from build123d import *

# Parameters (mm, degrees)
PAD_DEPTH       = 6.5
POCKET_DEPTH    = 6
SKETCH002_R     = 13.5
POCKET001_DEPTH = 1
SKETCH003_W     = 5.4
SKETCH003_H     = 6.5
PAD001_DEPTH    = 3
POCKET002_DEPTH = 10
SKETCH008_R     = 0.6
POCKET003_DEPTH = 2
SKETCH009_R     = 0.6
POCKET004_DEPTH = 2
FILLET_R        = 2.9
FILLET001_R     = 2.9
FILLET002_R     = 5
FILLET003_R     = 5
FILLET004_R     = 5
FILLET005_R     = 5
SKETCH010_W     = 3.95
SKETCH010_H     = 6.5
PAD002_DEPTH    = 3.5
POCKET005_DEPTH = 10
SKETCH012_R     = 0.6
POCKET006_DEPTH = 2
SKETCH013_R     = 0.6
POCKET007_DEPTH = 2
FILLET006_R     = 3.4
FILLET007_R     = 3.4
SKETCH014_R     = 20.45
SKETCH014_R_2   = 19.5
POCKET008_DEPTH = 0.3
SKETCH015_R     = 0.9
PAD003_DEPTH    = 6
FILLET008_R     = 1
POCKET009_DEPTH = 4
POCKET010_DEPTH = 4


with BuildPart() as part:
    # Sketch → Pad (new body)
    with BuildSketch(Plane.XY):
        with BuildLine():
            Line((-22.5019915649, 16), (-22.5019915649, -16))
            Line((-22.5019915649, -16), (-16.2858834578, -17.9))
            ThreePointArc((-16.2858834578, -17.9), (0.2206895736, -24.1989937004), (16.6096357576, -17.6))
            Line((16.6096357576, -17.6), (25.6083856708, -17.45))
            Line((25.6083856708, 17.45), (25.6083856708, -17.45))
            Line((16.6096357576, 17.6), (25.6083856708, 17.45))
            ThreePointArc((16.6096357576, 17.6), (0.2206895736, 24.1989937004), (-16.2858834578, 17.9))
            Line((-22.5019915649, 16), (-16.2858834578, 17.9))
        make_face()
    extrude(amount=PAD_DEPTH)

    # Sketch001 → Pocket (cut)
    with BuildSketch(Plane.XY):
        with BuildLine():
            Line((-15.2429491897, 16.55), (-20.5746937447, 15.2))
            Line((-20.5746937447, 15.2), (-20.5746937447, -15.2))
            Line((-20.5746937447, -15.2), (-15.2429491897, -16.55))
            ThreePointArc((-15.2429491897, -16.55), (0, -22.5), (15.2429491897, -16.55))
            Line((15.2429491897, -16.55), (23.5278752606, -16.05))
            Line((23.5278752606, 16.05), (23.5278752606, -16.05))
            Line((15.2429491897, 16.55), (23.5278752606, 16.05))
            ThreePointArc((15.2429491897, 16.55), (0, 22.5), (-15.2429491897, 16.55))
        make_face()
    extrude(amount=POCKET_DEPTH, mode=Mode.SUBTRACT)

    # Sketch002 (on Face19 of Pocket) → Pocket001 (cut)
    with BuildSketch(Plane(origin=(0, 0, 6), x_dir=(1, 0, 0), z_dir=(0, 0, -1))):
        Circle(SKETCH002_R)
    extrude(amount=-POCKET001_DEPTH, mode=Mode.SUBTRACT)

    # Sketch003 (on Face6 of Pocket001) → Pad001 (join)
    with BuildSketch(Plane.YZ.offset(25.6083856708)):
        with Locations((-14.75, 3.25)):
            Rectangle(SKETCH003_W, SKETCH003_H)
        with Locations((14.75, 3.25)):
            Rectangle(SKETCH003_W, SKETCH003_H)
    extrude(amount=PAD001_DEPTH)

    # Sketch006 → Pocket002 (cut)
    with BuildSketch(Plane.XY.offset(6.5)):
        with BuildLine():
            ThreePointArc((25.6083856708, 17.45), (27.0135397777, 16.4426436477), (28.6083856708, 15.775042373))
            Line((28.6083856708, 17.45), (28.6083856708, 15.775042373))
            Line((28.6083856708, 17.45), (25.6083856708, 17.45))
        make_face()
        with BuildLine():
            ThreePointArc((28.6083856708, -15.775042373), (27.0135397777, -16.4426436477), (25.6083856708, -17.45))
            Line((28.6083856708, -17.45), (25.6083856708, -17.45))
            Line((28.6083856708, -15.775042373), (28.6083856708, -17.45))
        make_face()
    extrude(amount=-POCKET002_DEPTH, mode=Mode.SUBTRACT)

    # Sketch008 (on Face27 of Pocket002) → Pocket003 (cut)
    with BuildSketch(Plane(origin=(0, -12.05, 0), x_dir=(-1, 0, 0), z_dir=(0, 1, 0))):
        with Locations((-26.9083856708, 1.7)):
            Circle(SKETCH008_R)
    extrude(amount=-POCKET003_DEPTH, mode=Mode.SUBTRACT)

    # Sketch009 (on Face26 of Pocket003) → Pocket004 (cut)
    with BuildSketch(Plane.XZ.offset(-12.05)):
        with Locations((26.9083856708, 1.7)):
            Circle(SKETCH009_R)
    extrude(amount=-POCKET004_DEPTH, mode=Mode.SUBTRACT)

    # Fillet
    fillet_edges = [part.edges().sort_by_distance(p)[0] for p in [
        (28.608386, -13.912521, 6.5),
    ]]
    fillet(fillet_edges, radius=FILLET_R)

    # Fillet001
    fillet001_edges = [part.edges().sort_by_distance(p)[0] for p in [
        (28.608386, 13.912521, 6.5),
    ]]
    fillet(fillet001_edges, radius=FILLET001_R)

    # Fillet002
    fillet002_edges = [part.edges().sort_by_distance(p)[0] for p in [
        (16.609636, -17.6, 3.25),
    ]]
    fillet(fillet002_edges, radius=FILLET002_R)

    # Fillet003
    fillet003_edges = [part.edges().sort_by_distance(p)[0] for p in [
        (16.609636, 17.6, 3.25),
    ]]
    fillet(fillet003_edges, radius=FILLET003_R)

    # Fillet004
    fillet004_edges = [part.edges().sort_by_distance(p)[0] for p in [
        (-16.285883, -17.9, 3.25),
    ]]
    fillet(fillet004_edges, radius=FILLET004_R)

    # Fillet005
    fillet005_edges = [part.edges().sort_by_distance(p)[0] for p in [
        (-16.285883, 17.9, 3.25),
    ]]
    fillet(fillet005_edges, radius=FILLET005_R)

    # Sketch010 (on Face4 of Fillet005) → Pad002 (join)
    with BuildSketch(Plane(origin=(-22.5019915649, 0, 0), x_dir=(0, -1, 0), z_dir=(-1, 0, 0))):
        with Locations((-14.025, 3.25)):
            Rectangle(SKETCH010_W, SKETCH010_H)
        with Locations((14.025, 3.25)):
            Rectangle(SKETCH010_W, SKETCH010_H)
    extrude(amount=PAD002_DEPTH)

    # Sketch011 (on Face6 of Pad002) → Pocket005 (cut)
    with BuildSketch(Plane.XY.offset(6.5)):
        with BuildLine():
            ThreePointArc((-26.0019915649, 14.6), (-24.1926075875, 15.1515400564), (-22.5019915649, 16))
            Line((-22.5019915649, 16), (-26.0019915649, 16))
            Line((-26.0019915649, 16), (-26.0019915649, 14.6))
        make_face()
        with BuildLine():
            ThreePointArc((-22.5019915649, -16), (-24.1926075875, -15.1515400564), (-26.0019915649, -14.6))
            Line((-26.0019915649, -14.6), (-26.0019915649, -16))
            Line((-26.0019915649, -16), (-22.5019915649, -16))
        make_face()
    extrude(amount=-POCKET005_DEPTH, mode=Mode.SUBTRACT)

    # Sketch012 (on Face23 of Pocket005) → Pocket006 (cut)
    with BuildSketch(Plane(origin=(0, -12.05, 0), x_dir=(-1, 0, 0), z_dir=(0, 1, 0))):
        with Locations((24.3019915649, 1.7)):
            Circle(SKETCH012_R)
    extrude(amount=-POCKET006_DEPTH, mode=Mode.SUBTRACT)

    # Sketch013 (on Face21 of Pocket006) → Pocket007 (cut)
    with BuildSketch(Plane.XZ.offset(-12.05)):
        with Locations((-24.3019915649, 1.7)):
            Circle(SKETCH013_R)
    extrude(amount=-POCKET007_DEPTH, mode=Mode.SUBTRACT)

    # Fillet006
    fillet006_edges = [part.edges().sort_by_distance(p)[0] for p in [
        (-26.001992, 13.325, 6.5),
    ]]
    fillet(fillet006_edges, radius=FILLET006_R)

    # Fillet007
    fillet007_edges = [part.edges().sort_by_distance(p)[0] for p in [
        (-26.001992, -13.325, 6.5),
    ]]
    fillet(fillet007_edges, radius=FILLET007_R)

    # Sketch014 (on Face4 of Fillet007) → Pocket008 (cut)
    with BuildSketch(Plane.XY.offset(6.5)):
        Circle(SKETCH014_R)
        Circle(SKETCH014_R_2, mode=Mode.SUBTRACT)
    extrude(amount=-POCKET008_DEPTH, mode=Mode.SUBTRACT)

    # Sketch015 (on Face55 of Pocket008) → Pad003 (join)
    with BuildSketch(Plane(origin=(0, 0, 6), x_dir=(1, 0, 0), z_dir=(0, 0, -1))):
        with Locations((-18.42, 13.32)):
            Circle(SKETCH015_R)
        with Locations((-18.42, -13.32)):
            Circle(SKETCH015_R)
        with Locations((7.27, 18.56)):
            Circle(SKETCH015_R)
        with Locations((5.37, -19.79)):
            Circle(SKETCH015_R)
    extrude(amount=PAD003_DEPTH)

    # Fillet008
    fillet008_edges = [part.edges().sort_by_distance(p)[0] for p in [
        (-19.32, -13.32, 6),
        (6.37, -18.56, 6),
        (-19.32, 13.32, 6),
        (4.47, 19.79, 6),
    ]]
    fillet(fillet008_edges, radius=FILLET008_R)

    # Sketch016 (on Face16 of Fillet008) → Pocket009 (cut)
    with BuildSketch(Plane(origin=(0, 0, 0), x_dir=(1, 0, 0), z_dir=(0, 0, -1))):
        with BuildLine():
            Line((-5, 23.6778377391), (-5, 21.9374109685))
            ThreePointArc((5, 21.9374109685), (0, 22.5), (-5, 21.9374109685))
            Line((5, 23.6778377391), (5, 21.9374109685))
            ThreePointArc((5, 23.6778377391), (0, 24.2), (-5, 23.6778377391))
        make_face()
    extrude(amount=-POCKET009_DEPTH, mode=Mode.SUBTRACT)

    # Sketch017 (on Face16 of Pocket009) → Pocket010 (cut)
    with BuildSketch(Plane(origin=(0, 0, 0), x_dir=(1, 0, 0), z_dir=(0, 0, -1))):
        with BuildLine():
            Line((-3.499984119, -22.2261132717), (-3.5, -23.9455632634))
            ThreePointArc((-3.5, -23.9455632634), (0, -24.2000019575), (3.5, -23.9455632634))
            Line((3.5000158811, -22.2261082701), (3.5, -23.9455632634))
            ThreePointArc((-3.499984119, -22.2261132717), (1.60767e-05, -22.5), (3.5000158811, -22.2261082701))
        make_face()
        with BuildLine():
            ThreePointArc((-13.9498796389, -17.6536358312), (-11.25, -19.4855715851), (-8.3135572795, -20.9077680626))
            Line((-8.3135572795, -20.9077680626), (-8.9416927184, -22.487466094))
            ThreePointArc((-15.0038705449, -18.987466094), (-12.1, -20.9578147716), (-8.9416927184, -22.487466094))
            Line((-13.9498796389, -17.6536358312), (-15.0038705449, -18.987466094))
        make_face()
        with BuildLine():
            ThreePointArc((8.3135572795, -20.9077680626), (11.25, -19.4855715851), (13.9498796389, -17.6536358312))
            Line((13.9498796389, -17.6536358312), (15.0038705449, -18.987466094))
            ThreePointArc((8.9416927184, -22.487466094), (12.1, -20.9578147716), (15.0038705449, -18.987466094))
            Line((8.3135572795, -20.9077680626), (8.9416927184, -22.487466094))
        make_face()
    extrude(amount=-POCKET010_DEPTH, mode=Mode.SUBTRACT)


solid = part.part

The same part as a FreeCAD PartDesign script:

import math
import FreeCAD as App
import Part
import Sketcher
from FreeCAD import Vector
Q = App.Units.Quantity


def edges_at(feature, points):
    """Names of the edges that pass closest to the given points."""
    edges = feature.Shape.Edges
    near = lambda p: min(range(len(edges)), key=lambda i: edges[i].distToShape(Part.Vertex(*p))[0])
    return sorted({f"Edge{near(p) + 1}" for p in points})

doc = App.newDocument("Part")
params = doc.addObject("Spreadsheet::Sheet", "Params")
for row, (alias, value) in enumerate([
    ("sketch1_radius", "24.2 mm"),
    ("sketch1_height", "32 mm"),
    ("sketch1_length", "9 mm"),
    ("sketch1_height2", "34.9 mm"),
    ("sketch1_length2", "6.5 mm"),
    ("pad1_length", "6.5 mm"),
    ("sketch2_radius", "22.5 mm"),
    ("sketch2_height", "30.4 mm"),
    ("sketch2_height2", "32.1 mm"),
    ("sketch2_length", "5.5 mm"),
    ("sketch2_length2", "8.3 mm"),
    ("pocket1_length", "6 mm"),
    ("sketch3_diameter", "27 mm"),
    ("pocket2_length", "1 mm"),
    ("sketch4_width", "5.4 mm"),
    ("sketch4_height", "6.5 mm"),
    ("pad2_length", "3 mm"),
    ("sketch5_width", "3 mm"),
    ("pocket3_length", "10 mm"),
    ("sketch6_diameter", "1.2 mm"),
    ("pocket4_length", "2 mm"),
    ("sketch7_diameter", "1.2 mm"),
    ("pocket5_length", "2 mm"),
    ("fillet_radius", "2.9 mm"),
    ("fillet2_radius", "2.9 mm"),
    ("fillet3_radius", "5 mm"),
    ("fillet4_radius", "5 mm"),
    ("fillet5_radius", "5 mm"),
    ("fillet6_radius", "5 mm"),
    ("sketch8_height", "6.5 mm"),
    ("sketch8_width", "3.95 mm"),
    ("pad3_length", "3.5 mm"),
    ("sketch9_width", "3.5 mm"),
    ("sketch9_height", "1.4 mm"),
    ("pocket6_length", "10 mm"),
    ("sketch10_diameter", "1.2 mm"),
    ("pocket7_length", "2 mm"),
    ("sketch11_diameter", "1.2 mm"),
    ("pocket8_length", "2 mm"),
    ("fillet7_radius", "3.4 mm"),
    ("fillet8_radius", "3.4 mm"),
    ("sketch12_diameter", "39 mm"),
    ("sketch12_diameter2", "40.9 mm"),
    ("pocket9_length", "0.3 mm"),
    ("sketch13_diameter", "1.8 mm"),
    ("pad4_length", "6 mm"),
    ("fillet9_radius", "1 mm"),
    ("sketch14_radius", "22.5 mm"),
    ("sketch14_radius2", "24.2 mm"),
    ("pocket10_length", "4 mm"),
    ("sketch15_radius", "22.5 mm"),
    ("sketch15_radius2", "24.2 mm"),
    ("pocket11_length", "4 mm"),
], start=1):
    params.set(f"A{row}", alias)
    params.set(f"B{row}", "=" + value)
    params.setAlias(f"B{row}", alias)

body = doc.addObject("PartDesign::Body", "Body")

# Sketch on XY plane
sketch1 = doc.addObject("Sketcher::SketchObject", "Sketch")
body.addObject(sketch1)
sketch1.AttachmentSupport = (doc.XY_Plane, [""])
sketch1.MapMode = "FlatFace"
sketch1.addGeometry([
    Part.LineSegment(Vector(-22.501992, 16, 0), Vector(-22.501992, -16, 0)),  # 0
    Part.LineSegment(Vector(-22.501992, -16, 0), Vector(-16.285883, -17.9, 0)),  # 1
    Part.ArcOfCircle(Part.Circle(Vector(0, 0, 0), Vector(0, 0, 1), 24.2), math.radians(-132.296737), math.radians(-46.658242)),  # 2
    Part.LineSegment(Vector(16.609636, -17.6, 0), Vector(25.608386, -17.45, 0)),  # 3
    Part.LineSegment(Vector(25.608386, -17.45, 0), Vector(25.608386, 17.45, 0)),  # 4
    Part.LineSegment(Vector(25.608386, 17.45, 0), Vector(16.609636, 17.6, 0)),  # 5
    Part.ArcOfCircle(Part.Circle(Vector(0, 0, 0), Vector(0, 0, 1), 24.2), math.radians(46.658242), math.radians(132.296737)),  # 6
    Part.LineSegment(Vector(-16.285883, 17.9, 0), Vector(-22.501992, 16, 0)),  # 7
], False)
sketch1.addConstraint([
    Sketcher.Constraint("Coincident", 0, 2, 1, 1),
    Sketcher.Constraint("Coincident", 1, 2, 2, 1),
    Sketcher.Constraint("Coincident", 2, 2, 3, 1),
    Sketcher.Constraint("Coincident", 3, 2, 4, 1),
    Sketcher.Constraint("Coincident", 4, 2, 5, 1),
    Sketcher.Constraint("Coincident", 5, 2, 6, 1),
    Sketcher.Constraint("Coincident", 6, 2, 7, 1),
    Sketcher.Constraint("Coincident", 7, 2, 0, 1),
    Sketcher.Constraint("Vertical", 0),
    Sketcher.Constraint("Vertical", 4),
    Sketcher.Constraint("Coincident", 2, 3, -1, 1),
    Sketcher.Constraint("Coincident", 6, 3, -1, 1),
    Sketcher.Constraint("Equal", 2, 6),
    Sketcher.Constraint("Vertical", 2, 2, 5, 2),
    Sketcher.Constraint("Vertical", 1, 2, 6, 2),
    Sketcher.Constraint("Equal", 3, 5),
    Sketcher.Constraint("Equal", 1, 7),
    Sketcher.Constraint("Radius", 2, Q("24.2 mm")),
    Sketcher.Constraint("DistanceY", 0, 2, 0, 1, Q("32 mm")),
    Sketcher.Constraint("Distance", 3, Q("9 mm")),
    Sketcher.Constraint("DistanceY", 4, 1, 4, 2, Q("34.9 mm")),
    Sketcher.Constraint("Distance", 1, Q("6.5 mm")),
    Sketcher.Constraint("DistanceY", 1, 2, -1, 1, Q("17.9 mm")),
    Sketcher.Constraint("DistanceY", 2, 2, -1, 1, Q("17.6 mm")),
])
sketch1.setExpression("Constraints[17]", "Params.sketch1_radius")
sketch1.setExpression("Constraints[18]", "Params.sketch1_height")
sketch1.setExpression("Constraints[19]", "Params.sketch1_length")
sketch1.setExpression("Constraints[20]", "Params.sketch1_height2")
sketch1.setExpression("Constraints[21]", "Params.sketch1_length2")
pad1 = doc.addObject("PartDesign::Pad", "Pad")
body.addObject(pad1)
pad1.Profile = sketch1
pad1.setExpression("Length", "Params.pad1_length")

# Sketch on XY plane
sketch2 = doc.addObject("Sketcher::SketchObject", "Sketch001")
body.addObject(sketch2)
sketch2.AttachmentSupport = (doc.XY_Plane, [""])
sketch2.MapMode = "FlatFace"
sketch2.addGeometry([
    Part.LineSegment(Vector(-15.242949, 16.55, 0), Vector(-20.574694, 15.2, 0)),  # 0
    Part.LineSegment(Vector(-20.574694, 15.2, 0), Vector(-20.574694, -15.2, 0)),  # 1
    Part.LineSegment(Vector(-20.574694, -15.2, 0), Vector(-15.242949, -16.55, 0)),  # 2
    Part.ArcOfCircle(Part.Circle(Vector(0, 0, 0), Vector(0, 0, 1), 22.5), math.radians(-132.645819), math.radians(-47.354181)),  # 3
    Part.LineSegment(Vector(15.242949, -16.55, 0), Vector(23.527875, -16.05, 0)),  # 4
    Part.LineSegment(Vector(23.527875, -16.05, 0), Vector(23.527875, 16.05, 0)),  # 5
    Part.LineSegment(Vector(23.527875, 16.05, 0), Vector(15.242949, 16.55, 0)),  # 6
    Part.ArcOfCircle(Part.Circle(Vector(0, 0, 0), Vector(0, 0, 1), 22.5), math.radians(47.354181), math.radians(132.645819)),  # 7
], False)
sketch2.addConstraint([
    Sketcher.Constraint("Coincident", 0, 2, 1, 1),
    Sketcher.Constraint("Coincident", 1, 2, 2, 1),
    Sketcher.Constraint("Coincident", 2, 2, 3, 1),
    Sketcher.Constraint("Coincident", 3, 2, 4, 1),
    Sketcher.Constraint("Coincident", 4, 2, 5, 1),
    Sketcher.Constraint("Coincident", 5, 2, 6, 1),
    Sketcher.Constraint("Coincident", 6, 2, 7, 1),
    Sketcher.Constraint("Coincident", 7, 2, 0, 1),
    Sketcher.Constraint("Vertical", 1),
    Sketcher.Constraint("Vertical", 5),
    Sketcher.Constraint("Coincident", 3, 3, -1, 1),
    Sketcher.Constraint("Coincident", 7, 3, -1, 1),
    Sketcher.Constraint("Equal", 3, 7),
    Sketcher.Constraint("Horizontal", 2, 2, 3, 2),
    Sketcher.Constraint("Horizontal", 6, 2, 7, 2),
    Sketcher.Constraint("Vertical", 3, 2, 6, 2),
    Sketcher.Constraint("Equal", 0, 2),
    Sketcher.Constraint("Equal", 4, 6),
    Sketcher.Constraint("Radius", 3, Q("22.5 mm")),
    Sketcher.Constraint("DistanceY", 1, 2, 1, 1, Q("30.4 mm")),
    Sketcher.Constraint("DistanceY", 5, 1, 5, 2, Q("32.1 mm")),
    Sketcher.Constraint("Distance", 0, Q("5.5 mm")),
    Sketcher.Constraint("Distance", 4, Q("8.3 mm")),
    Sketcher.Constraint("DistanceY", 3, 2, 4, 2, Q("0.5 mm")),
])
sketch2.setExpression("Constraints[18]", "Params.sketch2_radius")
sketch2.setExpression("Constraints[19]", "Params.sketch2_height")
sketch2.setExpression("Constraints[20]", "Params.sketch2_height2")
sketch2.setExpression("Constraints[21]", "Params.sketch2_length")
sketch2.setExpression("Constraints[22]", "Params.sketch2_length2")
pocket1 = doc.addObject("PartDesign::Pocket", "Pocket")
body.addObject(pocket1)
pocket1.Profile = sketch2
pocket1.setExpression("Length", "Params.pocket1_length")
pocket1.Reversed = True

# Sketch on XY plane
sketch3 = doc.addObject("Sketcher::SketchObject", "Sketch002")
body.addObject(sketch3)
sketch3.AttachmentSupport = (doc.XY_Plane, [""])
sketch3.MapMode = "FlatFace"
sketch3.AttachmentOffset = App.Placement(Vector(0, 0, 6), App.Rotation())
sketch3.addGeometry(Part.Circle(Vector(0, 0, 0), Vector(0, 0, 1), 13.5), False)
sketch3.addConstraint([
    Sketcher.Constraint("Coincident", 0, 3, -1, 1),
    Sketcher.Constraint("Diameter", 0, Q("27 mm")),
])
sketch3.setExpression("Constraints[1]", "Params.sketch3_diameter")
pocket2 = doc.addObject("PartDesign::Pocket", "Pocket001")
body.addObject(pocket2)
pocket2.Profile = sketch3
pocket2.setExpression("Length", "Params.pocket2_length")
pocket2.Reversed = True

# Sketch on YZ plane
sketch4 = doc.addObject("Sketcher::SketchObject", "Sketch003")
body.addObject(sketch4)
sketch4.AttachmentSupport = (doc.YZ_Plane, [""])
sketch4.MapMode = "FlatFace"
sketch4.AttachmentOffset = App.Placement(Vector(0, 0, 25.608386), App.Rotation())
sketch4.addGeometry([
    Part.LineSegment(Vector(-17.45, 6.5, 0), Vector(-17.45, 0, 0)),  # 0
    Part.LineSegment(Vector(-17.45, 0, 0), Vector(-12.05, 0, 0)),  # 1
    Part.LineSegment(Vector(-12.05, 0, 0), Vector(-12.05, 6.5, 0)),  # 2
    Part.LineSegment(Vector(-12.05, 6.5, 0), Vector(-17.45, 6.5, 0)),  # 3
    Part.LineSegment(Vector(12.05, 6.5, 0), Vector(12.05, 0, 0)),  # 4
    Part.LineSegment(Vector(12.05, 0, 0), Vector(17.45, 0, 0)),  # 5
    Part.LineSegment(Vector(17.45, 0, 0), Vector(17.45, 6.5, 0)),  # 6
    Part.LineSegment(Vector(17.45, 6.5, 0), Vector(12.05, 6.5, 0)),  # 7
], False)
sketch4.addConstraint([
    Sketcher.Constraint("Coincident", 0, 2, 1, 1),
    Sketcher.Constraint("Coincident", 1, 2, 2, 1),
    Sketcher.Constraint("Coincident", 2, 2, 3, 1),
    Sketcher.Constraint("Coincident", 3, 2, 0, 1),
    Sketcher.Constraint("Coincident", 4, 2, 5, 1),
    Sketcher.Constraint("Coincident", 5, 2, 6, 1),
    Sketcher.Constraint("Coincident", 6, 2, 7, 1),
    Sketcher.Constraint("Coincident", 7, 2, 4, 1),
    Sketcher.Constraint("Vertical", 0),
    Sketcher.Constraint("Horizontal", 1),
    Sketcher.Constraint("Vertical", 2),
    Sketcher.Constraint("Horizontal", 3),
    Sketcher.Constraint("Vertical", 4),
    Sketcher.Constraint("Horizontal", 5),
    Sketcher.Constraint("Vertical", 6),
    Sketcher.Constraint("Horizontal", 7),
    Sketcher.Constraint("Symmetric", 1, 2, 4, 2, -1, 1),
    Sketcher.Constraint("Symmetric", 0, 2, 5, 2, -2),
    Sketcher.Constraint("Horizontal", 3, 2, 6, 2),
    Sketcher.Constraint("DistanceX", 1, 1, 1, 2, Q("5.4 mm")),
    Sketcher.Constraint("DistanceY", 0, 2, 0, 1, Q("6.5 mm")),
    Sketcher.Constraint("DistanceX", 1, 2, 4, 2, Q("24.1 mm")),
])
sketch4.setExpression("Constraints[19]", "Params.sketch4_width")
sketch4.setExpression("Constraints[20]", "Params.sketch4_height")
pad2 = doc.addObject("PartDesign::Pad", "Pad001")
body.addObject(pad2)
pad2.Profile = sketch4
pad2.setExpression("Length", "Params.pad2_length")

# Sketch on XY plane
sketch5 = doc.addObject("Sketcher::SketchObject", "Sketch004")
body.addObject(sketch5)
sketch5.AttachmentSupport = (doc.XY_Plane, [""])
sketch5.MapMode = "FlatFace"
sketch5.AttachmentOffset = App.Placement(Vector(0, 0, 6.5), App.Rotation())
sketch5.addGeometry([
    Part.ArcOfCircle(Part.Circle(Vector(30.758386, 23.15, 0), Vector(0, 0, 1), 7.681959), math.radians(-132.09809), math.radians(-106.252835)),  # 0
    Part.LineSegment(Vector(28.608386, 15.775042, 0), Vector(28.608386, 17.45, 0)),  # 1
    Part.LineSegment(Vector(28.608386, 17.45, 0), Vector(25.608386, 17.45, 0)),  # 2
    Part.ArcOfCircle(Part.Circle(Vector(30.758386, -23.15, 0), Vector(0, 0, 1), 7.681959), math.radians(106.252835), math.radians(132.09809)),  # 3
    Part.LineSegment(Vector(25.608386, -17.45, 0), Vector(28.608386, -17.45, 0)),  # 4
    Part.LineSegment(Vector(28.608386, -17.45, 0), Vector(28.608386, -15.775042, 0)),  # 5
], False)
sketch5.addConstraint([
    Sketcher.Constraint("Coincident", 0, 2, 1, 1),
    Sketcher.Constraint("Coincident", 1, 2, 2, 1),
    Sketcher.Constraint("Coincident", 2, 2, 0, 1),
    Sketcher.Constraint("Coincident", 3, 2, 4, 1),
    Sketcher.Constraint("Coincident", 4, 2, 5, 1),
    Sketcher.Constraint("Coincident", 5, 2, 3, 1),
    Sketcher.Constraint("Vertical", 1),
    Sketcher.Constraint("Horizontal", 2),
    Sketcher.Constraint("Horizontal", 4),
    Sketcher.Constraint("Vertical", 5),
    Sketcher.Constraint("Equal", 0, 3),
    Sketcher.Constraint("Symmetric", 0, 3, 3, 3, -1),
    Sketcher.Constraint("Symmetric", 1, 2, 4, 2, -1),
    Sketcher.Constraint("DistanceX", 2, 2, 2, 1, Q("3 mm")),
    Sketcher.Constraint("DistanceY", 3, 3, 0, 3, Q("46.3 mm")),
    Sketcher.Constraint("DistanceY", 1, 2, 0, 3, Q("5.7 mm")),
    Sketcher.Constraint("Radius", 0, Q("7.681959 mm")),
    Sketcher.Constraint("DistanceX", -1, 1, 0, 3, Q("30.758386 mm")),
])
sketch5.setExpression("Constraints[13]", "Params.sketch5_width")
pocket3 = doc.addObject("PartDesign::Pocket", "Pocket002")
body.addObject(pocket3)
pocket3.Profile = sketch5
pocket3.setExpression("Length", "Params.pocket3_length")

# Sketch on XZ plane
sketch6 = doc.addObject("Sketcher::SketchObject", "Sketch005")
body.addObject(sketch6)
sketch6.AttachmentSupport = (doc.XZ_Plane, [""])
sketch6.MapMode = "FlatFace"
sketch6.AttachmentOffset = App.Placement(Vector(0, 0, 12.05), App.Rotation())
sketch6.addGeometry(Part.Circle(Vector(26.908386, 1.7, 0), Vector(0, 0, 1), 0.6), False)
sketch6.addConstraint([
    Sketcher.Constraint("Diameter", 0, Q("1.2 mm")),
    Sketcher.Constraint("DistanceY", -1, 1, 0, 3, Q("1.7 mm")),
    Sketcher.Constraint("DistanceX", -1, 1, 0, 3, Q("26.908386 mm")),
])
sketch6.setExpression("Constraints[0]", "Params.sketch6_diameter")
pocket4 = doc.addObject("PartDesign::Pocket", "Pocket003")
body.addObject(pocket4)
pocket4.Profile = sketch6
pocket4.setExpression("Length", "Params.pocket4_length")
pocket4.Reversed = True

# Sketch on XZ plane
sketch7 = doc.addObject("Sketcher::SketchObject", "Sketch006")
body.addObject(sketch7)
sketch7.AttachmentSupport = (doc.XZ_Plane, [""])
sketch7.MapMode = "FlatFace"
sketch7.AttachmentOffset = App.Placement(Vector(0, 0, -12.05), App.Rotation())
sketch7.addGeometry(Part.Circle(Vector(26.908386, 1.7, 0), Vector(0, 0, 1), 0.6), False)
sketch7.addConstraint([
    Sketcher.Constraint("Diameter", 0, Q("1.2 mm")),
    Sketcher.Constraint("DistanceY", -1, 1, 0, 3, Q("1.7 mm")),
    Sketcher.Constraint("DistanceX", -1, 1, 0, 3, Q("26.908386 mm")),
])
sketch7.setExpression("Constraints[0]", "Params.sketch7_diameter")
pocket5 = doc.addObject("PartDesign::Pocket", "Pocket004")
body.addObject(pocket5)
pocket5.Profile = sketch7
pocket5.setExpression("Length", "Params.pocket5_length")
doc.recompute()

fillet = doc.addObject("PartDesign::Fillet", "Fillet")
body.addObject(fillet)
fillet.Base = (pocket5, edges_at(pocket5, [(28.608, -13.913, 6.5)]))
fillet.setExpression("Radius", "Params.fillet_radius")
doc.recompute()

fillet2 = doc.addObject("PartDesign::Fillet", "Fillet001")
body.addObject(fillet2)
fillet2.Base = (fillet, edges_at(fillet, [(28.608, 13.913, 6.5)]))
fillet2.setExpression("Radius", "Params.fillet2_radius")
doc.recompute()

fillet3 = doc.addObject("PartDesign::Fillet", "Fillet002")
body.addObject(fillet3)
fillet3.Base = (fillet2, edges_at(fillet2, [(16.61, -17.6, 3.25)]))
fillet3.setExpression("Radius", "Params.fillet3_radius")
doc.recompute()

fillet4 = doc.addObject("PartDesign::Fillet", "Fillet003")
body.addObject(fillet4)
fillet4.Base = (fillet3, edges_at(fillet3, [(16.61, 17.6, 3.25)]))
fillet4.setExpression("Radius", "Params.fillet4_radius")
doc.recompute()

fillet5 = doc.addObject("PartDesign::Fillet", "Fillet004")
body.addObject(fillet5)
fillet5.Base = (fillet4, edges_at(fillet4, [(-16.286, -17.9, 3.25)]))
fillet5.setExpression("Radius", "Params.fillet5_radius")
doc.recompute()

fillet6 = doc.addObject("PartDesign::Fillet", "Fillet005")
body.addObject(fillet6)
fillet6.Base = (fillet5, edges_at(fillet5, [(-16.286, 17.9, 3.25)]))
fillet6.setExpression("Radius", "Params.fillet6_radius")

# Sketch on YZ plane
sketch8 = doc.addObject("Sketcher::SketchObject", "Sketch007")
body.addObject(sketch8)
sketch8.AttachmentSupport = (doc.YZ_Plane, [""])
sketch8.MapMode = "FlatFace"
sketch8.AttachmentOffset = App.Placement(Vector(0, 0, -22.501992), App.Rotation())
sketch8.addGeometry([
    Part.LineSegment(Vector(16, 6.5, 0), Vector(16, 0, 0)),  # 0
    Part.LineSegment(Vector(16, 0, 0), Vector(12.05, 0, 0)),  # 1
    Part.LineSegment(Vector(12.05, 0, 0), Vector(12.05, 6.5, 0)),  # 2
    Part.LineSegment(Vector(12.05, 6.5, 0), Vector(16, 6.5, 0)),  # 3
    Part.LineSegment(Vector(-12.05, 6.5, 0), Vector(-12.05, 0, 0)),  # 4
    Part.LineSegment(Vector(-12.05, 0, 0), Vector(-16, 0, 0)),  # 5
    Part.LineSegment(Vector(-16, 0, 0), Vector(-16, 6.5, 0)),  # 6
    Part.LineSegment(Vector(-16, 6.5, 0), Vector(-12.05, 6.5, 0)),  # 7
], False)
sketch8.addConstraint([
    Sketcher.Constraint("Coincident", 0, 2, 1, 1),
    Sketcher.Constraint("Coincident", 1, 2, 2, 1),
    Sketcher.Constraint("Coincident", 2, 2, 3, 1),
    Sketcher.Constraint("Coincident", 3, 2, 0, 1),
    Sketcher.Constraint("Coincident", 4, 2, 5, 1),
    Sketcher.Constraint("Coincident", 5, 2, 6, 1),
    Sketcher.Constraint("Coincident", 6, 2, 7, 1),
    Sketcher.Constraint("Coincident", 7, 2, 4, 1),
    Sketcher.Constraint("Vertical", 0),
    Sketcher.Constraint("Horizontal", 1),
    Sketcher.Constraint("Vertical", 2),
    Sketcher.Constraint("Horizontal", 3),
    Sketcher.Constraint("Vertical", 4),
    Sketcher.Constraint("Horizontal", 5),
    Sketcher.Constraint("Vertical", 6),
    Sketcher.Constraint("Horizontal", 7),
    Sketcher.Constraint("Symmetric", 1, 2, 4, 2, -1, 1),
    Sketcher.Constraint("Symmetric", 0, 2, 5, 2, -2),
    Sketcher.Constraint("Horizontal", 3, 2, 6, 2),
    Sketcher.Constraint("DistanceY", 0, 2, 0, 1, Q("6.5 mm")),
    Sketcher.Constraint("DistanceX", -1, 1, 0, 2, Q("16 mm")),
    Sketcher.Constraint("DistanceX", 1, 2, 1, 1, Q("3.95 mm")),
])
sketch8.setExpression("Constraints[19]", "Params.sketch8_height")
sketch8.setExpression("Constraints[21]", "Params.sketch8_width")
pad3 = doc.addObject("PartDesign::Pad", "Pad002")
body.addObject(pad3)
pad3.Profile = sketch8
pad3.setExpression("Length", "Params.pad3_length")
pad3.Reversed = True

# Sketch on XY plane
sketch9 = doc.addObject("Sketcher::SketchObject", "Sketch008")
body.addObject(sketch9)
sketch9.AttachmentSupport = (doc.XY_Plane, [""])
sketch9.MapMode = "FlatFace"
sketch9.AttachmentOffset = App.Placement(Vector(0, 0, 6.5), App.Rotation())
sketch9.addGeometry([
    Part.ArcOfCircle(Part.Circle(Vector(-28.347992, 25.54, 0), Vector(0, 0, 1), 11.188714), math.radians(-77.896659), math.radians(-58.500522)),  # 0
    Part.LineSegment(Vector(-22.501992, 16, 0), Vector(-26.001992, 16, 0)),  # 1
    Part.LineSegment(Vector(-26.001992, 16, 0), Vector(-26.001992, 14.6, 0)),  # 2
    Part.ArcOfCircle(Part.Circle(Vector(-28.347992, -25.54, 0), Vector(0, 0, 1), 11.188714), math.radians(58.500522), math.radians(77.896659)),  # 3
    Part.LineSegment(Vector(-26.001992, -14.6, 0), Vector(-26.001992, -16, 0)),  # 4
    Part.LineSegment(Vector(-26.001992, -16, 0), Vector(-22.501992, -16, 0)),  # 5
], False)
sketch9.addConstraint([
    Sketcher.Constraint("Coincident", 0, 2, 1, 1),
    Sketcher.Constraint("Coincident", 1, 2, 2, 1),
    Sketcher.Constraint("Coincident", 2, 2, 0, 1),
    Sketcher.Constraint("Coincident", 3, 2, 4, 1),
    Sketcher.Constraint("Coincident", 4, 2, 5, 1),
    Sketcher.Constraint("Coincident", 5, 2, 3, 1),
    Sketcher.Constraint("Horizontal", 1),
    Sketcher.Constraint("Vertical", 2),
    Sketcher.Constraint("Vertical", 4),
    Sketcher.Constraint("Horizontal", 5),
    Sketcher.Constraint("Equal", 0, 3),
    Sketcher.Constraint("Symmetric", 0, 3, 3, 3, -1),
    Sketcher.Constraint("Symmetric", 1, 2, 4, 2, -1),
    Sketcher.Constraint("DistanceX", 1, 2, 1, 1, Q("3.5 mm")),
    Sketcher.Constraint("DistanceY", 2, 2, 2, 1, Q("1.4 mm")),
    Sketcher.Constraint("DistanceY", -1, 1, 0, 2, Q("16 mm")),
    Sketcher.Constraint("DistanceY", -1, 1, 0, 3, Q("25.54 mm")),
    Sketcher.Constraint("DistanceX", 0, 3, -1, 1, Q("28.347992 mm")),
])
sketch9.setExpression("Constraints[13]", "Params.sketch9_width")
sketch9.setExpression("Constraints[14]", "Params.sketch9_height")
pocket6 = doc.addObject("PartDesign::Pocket", "Pocket005")
body.addObject(pocket6)
pocket6.Profile = sketch9
pocket6.setExpression("Length", "Params.pocket6_length")

# Sketch on XZ plane
sketch10 = doc.addObject("Sketcher::SketchObject", "Sketch009")
body.addObject(sketch10)
sketch10.AttachmentSupport = (doc.XZ_Plane, [""])
sketch10.MapMode = "FlatFace"
sketch10.AttachmentOffset = App.Placement(Vector(0, 0, 12.05), App.Rotation())
sketch10.addGeometry(Part.Circle(Vector(-24.301992, 1.7, 0), Vector(0, 0, 1), 0.6), False)
sketch10.addConstraint([
    Sketcher.Constraint("Diameter", 0, Q("1.2 mm")),
    Sketcher.Constraint("DistanceY", -1, 1, 0, 3, Q("1.7 mm")),
    Sketcher.Constraint("DistanceX", 0, 3, -1, 1, Q("24.301992 mm")),
])
sketch10.setExpression("Constraints[0]", "Params.sketch10_diameter")
pocket7 = doc.addObject("PartDesign::Pocket", "Pocket006")
body.addObject(pocket7)
pocket7.Profile = sketch10
pocket7.setExpression("Length", "Params.pocket7_length")
pocket7.Reversed = True

# Sketch on XZ plane
sketch11 = doc.addObject("Sketcher::SketchObject", "Sketch010")
body.addObject(sketch11)
sketch11.AttachmentSupport = (doc.XZ_Plane, [""])
sketch11.MapMode = "FlatFace"
sketch11.AttachmentOffset = App.Placement(Vector(0, 0, -12.05), App.Rotation())
sketch11.addGeometry(Part.Circle(Vector(-24.301992, 1.7, 0), Vector(0, 0, 1), 0.6), False)
sketch11.addConstraint([
    Sketcher.Constraint("Diameter", 0, Q("1.2 mm")),
    Sketcher.Constraint("DistanceY", -1, 1, 0, 3, Q("1.7 mm")),
    Sketcher.Constraint("DistanceX", 0, 3, -1, 1, Q("24.301992 mm")),
])
sketch11.setExpression("Constraints[0]", "Params.sketch11_diameter")
pocket8 = doc.addObject("PartDesign::Pocket", "Pocket007")
body.addObject(pocket8)
pocket8.Profile = sketch11
pocket8.setExpression("Length", "Params.pocket8_length")
doc.recompute()

fillet7 = doc.addObject("PartDesign::Fillet", "Fillet006")
body.addObject(fillet7)
fillet7.Base = (pocket8, edges_at(pocket8, [(-26.002, 13.325, 6.5)]))
fillet7.setExpression("Radius", "Params.fillet7_radius")
doc.recompute()

fillet8 = doc.addObject("PartDesign::Fillet", "Fillet007")
body.addObject(fillet8)
fillet8.Base = (fillet7, edges_at(fillet7, [(-26.002, -13.325, 6.5)]))
fillet8.setExpression("Radius", "Params.fillet8_radius")

# Sketch on XY plane
sketch12 = doc.addObject("Sketcher::SketchObject", "Sketch011")
body.addObject(sketch12)
sketch12.AttachmentSupport = (doc.XY_Plane, [""])
sketch12.MapMode = "FlatFace"
sketch12.AttachmentOffset = App.Placement(Vector(0, 0, 6.5), App.Rotation())
sketch12.addGeometry([
    Part.Circle(Vector(0, 0, 0), Vector(0, 0, 1), 20.45),
    Part.Circle(Vector(0, 0, 0), Vector(0, 0, 1), 19.5),
], False)
sketch12.addConstraint([
    Sketcher.Constraint("Coincident", 0, 3, -1, 1),
    Sketcher.Constraint("Coincident", 1, 3, -1, 1),
    Sketcher.Constraint("Diameter", 1, Q("39 mm")),
    Sketcher.Constraint("Diameter", 0, Q("40.9 mm")),
])
sketch12.setExpression("Constraints[2]", "Params.sketch12_diameter")
sketch12.setExpression("Constraints[3]", "Params.sketch12_diameter2")
pocket9 = doc.addObject("PartDesign::Pocket", "Pocket008")
body.addObject(pocket9)
pocket9.Profile = sketch12
pocket9.setExpression("Length", "Params.pocket9_length")

# Sketch on XY plane
sketch13 = doc.addObject("Sketcher::SketchObject", "Sketch012")
body.addObject(sketch13)
sketch13.AttachmentSupport = (doc.XY_Plane, [""])
sketch13.MapMode = "FlatFace"
sketch13.AttachmentOffset = App.Placement(Vector(0, 0, 6), App.Rotation())
sketch13.addGeometry([
    Part.Circle(Vector(-18.42, -13.32, 0), Vector(0, 0, 1), 0.9),
    Part.Circle(Vector(-18.42, 13.32, 0), Vector(0, 0, 1), 0.9),
    Part.Circle(Vector(7.27, -18.56, 0), Vector(0, 0, 1), 0.9),
    Part.Circle(Vector(5.37, 19.79, 0), Vector(0, 0, 1), 0.9),
], False)
sketch13.addConstraint([
    Sketcher.Constraint("Equal", 0, 1),
    Sketcher.Constraint("Equal", 1, 2),
    Sketcher.Constraint("Equal", 2, 3),
    Sketcher.Constraint("Symmetric", 0, 3, 1, 3, -1),
    Sketcher.Constraint("Diameter", 0, Q("1.8 mm")),
    Sketcher.Constraint("DistanceX", 3, 3, 2, 3, Q("1.9 mm")),
    Sketcher.Constraint("DistanceX", 0, 3, -1, 1, Q("18.42 mm")),
    Sketcher.Constraint("DistanceY", 0, 3, -1, 1, Q("13.32 mm")),
    Sketcher.Constraint("DistanceX", -1, 1, 2, 3, Q("7.27 mm")),
    Sketcher.Constraint("DistanceY", 2, 3, -1, 1, Q("18.56 mm")),
    Sketcher.Constraint("DistanceY", -1, 1, 3, 3, Q("19.79 mm")),
])
sketch13.setExpression("Constraints[4]", "Params.sketch13_diameter")
pad4 = doc.addObject("PartDesign::Pad", "Pad003")
body.addObject(pad4)
pad4.Profile = sketch13
pad4.setExpression("Length", "Params.pad4_length")
pad4.Reversed = True
doc.recompute()

fillet9 = doc.addObject("PartDesign::Fillet", "Fillet008")
body.addObject(fillet9)
fillet9.Base = (pad4, edges_at(pad4, [
    (-19.32, -13.32, 6),
    (6.37, -18.56, 6),
    (-19.32, 13.32, 6),
    (4.47, 19.79, 6),
]))
fillet9.setExpression("Radius", "Params.fillet9_radius")

# Sketch on XY plane
sketch14 = doc.addObject("Sketcher::SketchObject", "Sketch013")
body.addObject(sketch14)
sketch14.AttachmentSupport = (doc.XY_Plane, [""])
sketch14.MapMode = "FlatFace"
sketch14.addGeometry([
    Part.LineSegment(Vector(-5, -23.677838, 0), Vector(-5, -21.937411, 0)),
    Part.ArcOfCircle(Part.Circle(Vector(0, 0, 0), Vector(0, 0, 1), 22.5), math.radians(-102.839588), math.radians(-77.160412)),
    Part.LineSegment(Vector(5, -21.937411, 0), Vector(5, -23.677838, 0)),
    Part.ArcOfCircle(Part.Circle(Vector(0, 0, 0), Vector(0, 0, 1), 24.2), math.radians(-101.923855), math.radians(-78.076145)),
], False)
sketch14.addConstraint([
    Sketcher.Constraint("Coincident", 0, 2, 1, 1),
    Sketcher.Constraint("Coincident", 1, 2, 2, 1),
    Sketcher.Constraint("Coincident", 2, 2, 3, 2),
    Sketcher.Constraint("Coincident", 3, 1, 0, 1),
    Sketcher.Constraint("Vertical", 0),
    Sketcher.Constraint("Vertical", 2),
    Sketcher.Constraint("Coincident", 1, 3, -1, 1),
    Sketcher.Constraint("Coincident", 3, 3, -1, 1),
    Sketcher.Constraint("Horizontal", 0, 2, 1, 2),
    Sketcher.Constraint("Radius", 1, Q("22.5 mm")),
    Sketcher.Constraint("Radius", 3, Q("24.2 mm")),
    Sketcher.Constraint("DistanceX", 0, 2, -1, 1, Q("5 mm")),
])
sketch14.setExpression("Constraints[9]", "Params.sketch14_radius")
sketch14.setExpression("Constraints[10]", "Params.sketch14_radius2")
pocket10 = doc.addObject("PartDesign::Pocket", "Pocket009")
body.addObject(pocket10)
pocket10.Profile = sketch14
pocket10.setExpression("Length", "Params.pocket10_length")
pocket10.Reversed = True

# Sketch on XY plane
sketch15 = doc.addObject("Sketcher::SketchObject", "Sketch014")
body.addObject(sketch15)
sketch15.AttachmentSupport = (doc.XY_Plane, [""])
sketch15.MapMode = "FlatFace"
sketch15.addGeometry([
    Part.LineSegment(Vector(-3.499984, 22.226113, 0), Vector(-3.5, 23.945563, 0)),  # 0
    Part.ArcOfCircle(Part.Circle(Vector(0, 0.000186, 0), Vector(0, 0, 1), 24.199816), math.radians(81.684192), math.radians(98.315808)),  # 1
    Part.LineSegment(Vector(3.5, 23.945563, 0), Vector(3.500016, 22.226108, 0)),  # 2
    Part.ArcOfCircle(Part.Circle(Vector(0, 0, 0), Vector(0, 0, 1), 22.5), math.radians(81.050941), math.radians(98.948977)),  # 3
    Part.ArcOfCircle(Part.Circle(Vector(0, 0, 0), Vector(0, 0, 1), 22.5), math.radians(111.684256), math.radians(128.315744)),  # 4
    Part.LineSegment(Vector(-13.94988, 17.653636, 0), Vector(-15.003871, 18.987466, 0)),  # 5
    Part.ArcOfCircle(Part.Circle(Vector(0, 0, 0), Vector(0, 0, 1), 24.2), math.radians(111.684256), math.radians(128.315744)),  # 6
    Part.LineSegment(Vector(-8.941693, 22.487466, 0), Vector(-8.313557, 20.907768, 0)),  # 7
    Part.ArcOfCircle(Part.Circle(Vector(0, 0, 0), Vector(0, 0, 1), 22.5), math.radians(51.684256), math.radians(68.315744)),  # 8
    Part.LineSegment(Vector(8.313557, 20.907768, 0), Vector(8.941693, 22.487466, 0)),  # 9
    Part.ArcOfCircle(Part.Circle(Vector(0, 0, 0), Vector(0, 0, 1), 24.2), math.radians(51.684256), math.radians(68.315744)),  # 10
    Part.LineSegment(Vector(15.003871, 18.987466, 0), Vector(13.94988, 17.653636, 0)),  # 11
], False)
sketch15.addConstraint([
    Sketcher.Constraint("Coincident", 0, 2, 1, 2),
    Sketcher.Constraint("Coincident", 1, 1, 2, 1),
    Sketcher.Constraint("Coincident", 2, 2, 3, 1),
    Sketcher.Constraint("Coincident", 3, 2, 0, 1),
    Sketcher.Constraint("Coincident", 4, 2, 5, 1),
    Sketcher.Constraint("Coincident", 5, 2, 6, 2),
    Sketcher.Constraint("Coincident", 6, 1, 7, 1),
    Sketcher.Constraint("Coincident", 7, 2, 4, 1),
    Sketcher.Constraint("Coincident", 8, 2, 9, 1),
    Sketcher.Constraint("Coincident", 9, 2, 10, 2),
    Sketcher.Constraint("Coincident", 10, 1, 11, 1),
    Sketcher.Constraint("Coincident", 11, 2, 8, 1),
    Sketcher.Constraint("Coincident", 3, 3, -1, 1),
    Sketcher.Constraint("Coincident", 4, 3, -1, 1),
    Sketcher.Constraint("Coincident", 6, 3, -1, 1),
    Sketcher.Constraint("Coincident", 8, 3, -1, 1),
    Sketcher.Constraint("Coincident", 10, 3, -1, 1),
    Sketcher.Constraint("Equal", 3, 4),
    Sketcher.Constraint("Equal", 4, 8),
    Sketcher.Constraint("Equal", 6, 10),
    Sketcher.Constraint("Symmetric", 0, 2, 1, 1, -2),
    Sketcher.Constraint("Parallel", 0, 2),
    Sketcher.Constraint("Horizontal", 7, 2, 8, 2),
    Sketcher.Constraint("Horizontal", 6, 1, 9, 2),
    Sketcher.Constraint("Horizontal", 5, 2, 10, 1),
    Sketcher.Constraint("Horizontal", 4, 2, 11, 2),
    Sketcher.Constraint("Radius", 3, Q("22.5 mm")),
    Sketcher.Constraint("Radius", 6, Q("24.2 mm")),
    Sketcher.Constraint("DistanceX", 0, 2, 1, 1, Q("7 mm")),
    Sketcher.Constraint("DistanceY", 5, 2, 6, 1, Q("3.5 mm")),
    Sketcher.Constraint("Radius", 1, Q("24.199816 mm")),
    Sketcher.Constraint("DistanceY", 7, 2, 6, 1, Q("1.579698 mm")),
    Sketcher.Constraint("Distance", 0, Q("1.71945 mm")),
    Sketcher.Constraint("DistanceY", -1, 1, 2, 2, Q("22.226108 mm")),
    Sketcher.Constraint("DistanceX", 4, 2, -1, 1, Q("13.94988 mm")),
    Sketcher.Constraint("DistanceX", 5, 2, -1, 1, Q("15.003871 mm")),
])
sketch15.setExpression("Constraints[26]", "Params.sketch15_radius")
sketch15.setExpression("Constraints[27]", "Params.sketch15_radius2")
pocket11 = doc.addObject("PartDesign::Pocket", "Pocket010")
body.addObject(pocket11)
pocket11.Profile = sketch15
pocket11.setExpression("Length", "Params.pocket11_length")
pocket11.Reversed = True

doc.recompute()
